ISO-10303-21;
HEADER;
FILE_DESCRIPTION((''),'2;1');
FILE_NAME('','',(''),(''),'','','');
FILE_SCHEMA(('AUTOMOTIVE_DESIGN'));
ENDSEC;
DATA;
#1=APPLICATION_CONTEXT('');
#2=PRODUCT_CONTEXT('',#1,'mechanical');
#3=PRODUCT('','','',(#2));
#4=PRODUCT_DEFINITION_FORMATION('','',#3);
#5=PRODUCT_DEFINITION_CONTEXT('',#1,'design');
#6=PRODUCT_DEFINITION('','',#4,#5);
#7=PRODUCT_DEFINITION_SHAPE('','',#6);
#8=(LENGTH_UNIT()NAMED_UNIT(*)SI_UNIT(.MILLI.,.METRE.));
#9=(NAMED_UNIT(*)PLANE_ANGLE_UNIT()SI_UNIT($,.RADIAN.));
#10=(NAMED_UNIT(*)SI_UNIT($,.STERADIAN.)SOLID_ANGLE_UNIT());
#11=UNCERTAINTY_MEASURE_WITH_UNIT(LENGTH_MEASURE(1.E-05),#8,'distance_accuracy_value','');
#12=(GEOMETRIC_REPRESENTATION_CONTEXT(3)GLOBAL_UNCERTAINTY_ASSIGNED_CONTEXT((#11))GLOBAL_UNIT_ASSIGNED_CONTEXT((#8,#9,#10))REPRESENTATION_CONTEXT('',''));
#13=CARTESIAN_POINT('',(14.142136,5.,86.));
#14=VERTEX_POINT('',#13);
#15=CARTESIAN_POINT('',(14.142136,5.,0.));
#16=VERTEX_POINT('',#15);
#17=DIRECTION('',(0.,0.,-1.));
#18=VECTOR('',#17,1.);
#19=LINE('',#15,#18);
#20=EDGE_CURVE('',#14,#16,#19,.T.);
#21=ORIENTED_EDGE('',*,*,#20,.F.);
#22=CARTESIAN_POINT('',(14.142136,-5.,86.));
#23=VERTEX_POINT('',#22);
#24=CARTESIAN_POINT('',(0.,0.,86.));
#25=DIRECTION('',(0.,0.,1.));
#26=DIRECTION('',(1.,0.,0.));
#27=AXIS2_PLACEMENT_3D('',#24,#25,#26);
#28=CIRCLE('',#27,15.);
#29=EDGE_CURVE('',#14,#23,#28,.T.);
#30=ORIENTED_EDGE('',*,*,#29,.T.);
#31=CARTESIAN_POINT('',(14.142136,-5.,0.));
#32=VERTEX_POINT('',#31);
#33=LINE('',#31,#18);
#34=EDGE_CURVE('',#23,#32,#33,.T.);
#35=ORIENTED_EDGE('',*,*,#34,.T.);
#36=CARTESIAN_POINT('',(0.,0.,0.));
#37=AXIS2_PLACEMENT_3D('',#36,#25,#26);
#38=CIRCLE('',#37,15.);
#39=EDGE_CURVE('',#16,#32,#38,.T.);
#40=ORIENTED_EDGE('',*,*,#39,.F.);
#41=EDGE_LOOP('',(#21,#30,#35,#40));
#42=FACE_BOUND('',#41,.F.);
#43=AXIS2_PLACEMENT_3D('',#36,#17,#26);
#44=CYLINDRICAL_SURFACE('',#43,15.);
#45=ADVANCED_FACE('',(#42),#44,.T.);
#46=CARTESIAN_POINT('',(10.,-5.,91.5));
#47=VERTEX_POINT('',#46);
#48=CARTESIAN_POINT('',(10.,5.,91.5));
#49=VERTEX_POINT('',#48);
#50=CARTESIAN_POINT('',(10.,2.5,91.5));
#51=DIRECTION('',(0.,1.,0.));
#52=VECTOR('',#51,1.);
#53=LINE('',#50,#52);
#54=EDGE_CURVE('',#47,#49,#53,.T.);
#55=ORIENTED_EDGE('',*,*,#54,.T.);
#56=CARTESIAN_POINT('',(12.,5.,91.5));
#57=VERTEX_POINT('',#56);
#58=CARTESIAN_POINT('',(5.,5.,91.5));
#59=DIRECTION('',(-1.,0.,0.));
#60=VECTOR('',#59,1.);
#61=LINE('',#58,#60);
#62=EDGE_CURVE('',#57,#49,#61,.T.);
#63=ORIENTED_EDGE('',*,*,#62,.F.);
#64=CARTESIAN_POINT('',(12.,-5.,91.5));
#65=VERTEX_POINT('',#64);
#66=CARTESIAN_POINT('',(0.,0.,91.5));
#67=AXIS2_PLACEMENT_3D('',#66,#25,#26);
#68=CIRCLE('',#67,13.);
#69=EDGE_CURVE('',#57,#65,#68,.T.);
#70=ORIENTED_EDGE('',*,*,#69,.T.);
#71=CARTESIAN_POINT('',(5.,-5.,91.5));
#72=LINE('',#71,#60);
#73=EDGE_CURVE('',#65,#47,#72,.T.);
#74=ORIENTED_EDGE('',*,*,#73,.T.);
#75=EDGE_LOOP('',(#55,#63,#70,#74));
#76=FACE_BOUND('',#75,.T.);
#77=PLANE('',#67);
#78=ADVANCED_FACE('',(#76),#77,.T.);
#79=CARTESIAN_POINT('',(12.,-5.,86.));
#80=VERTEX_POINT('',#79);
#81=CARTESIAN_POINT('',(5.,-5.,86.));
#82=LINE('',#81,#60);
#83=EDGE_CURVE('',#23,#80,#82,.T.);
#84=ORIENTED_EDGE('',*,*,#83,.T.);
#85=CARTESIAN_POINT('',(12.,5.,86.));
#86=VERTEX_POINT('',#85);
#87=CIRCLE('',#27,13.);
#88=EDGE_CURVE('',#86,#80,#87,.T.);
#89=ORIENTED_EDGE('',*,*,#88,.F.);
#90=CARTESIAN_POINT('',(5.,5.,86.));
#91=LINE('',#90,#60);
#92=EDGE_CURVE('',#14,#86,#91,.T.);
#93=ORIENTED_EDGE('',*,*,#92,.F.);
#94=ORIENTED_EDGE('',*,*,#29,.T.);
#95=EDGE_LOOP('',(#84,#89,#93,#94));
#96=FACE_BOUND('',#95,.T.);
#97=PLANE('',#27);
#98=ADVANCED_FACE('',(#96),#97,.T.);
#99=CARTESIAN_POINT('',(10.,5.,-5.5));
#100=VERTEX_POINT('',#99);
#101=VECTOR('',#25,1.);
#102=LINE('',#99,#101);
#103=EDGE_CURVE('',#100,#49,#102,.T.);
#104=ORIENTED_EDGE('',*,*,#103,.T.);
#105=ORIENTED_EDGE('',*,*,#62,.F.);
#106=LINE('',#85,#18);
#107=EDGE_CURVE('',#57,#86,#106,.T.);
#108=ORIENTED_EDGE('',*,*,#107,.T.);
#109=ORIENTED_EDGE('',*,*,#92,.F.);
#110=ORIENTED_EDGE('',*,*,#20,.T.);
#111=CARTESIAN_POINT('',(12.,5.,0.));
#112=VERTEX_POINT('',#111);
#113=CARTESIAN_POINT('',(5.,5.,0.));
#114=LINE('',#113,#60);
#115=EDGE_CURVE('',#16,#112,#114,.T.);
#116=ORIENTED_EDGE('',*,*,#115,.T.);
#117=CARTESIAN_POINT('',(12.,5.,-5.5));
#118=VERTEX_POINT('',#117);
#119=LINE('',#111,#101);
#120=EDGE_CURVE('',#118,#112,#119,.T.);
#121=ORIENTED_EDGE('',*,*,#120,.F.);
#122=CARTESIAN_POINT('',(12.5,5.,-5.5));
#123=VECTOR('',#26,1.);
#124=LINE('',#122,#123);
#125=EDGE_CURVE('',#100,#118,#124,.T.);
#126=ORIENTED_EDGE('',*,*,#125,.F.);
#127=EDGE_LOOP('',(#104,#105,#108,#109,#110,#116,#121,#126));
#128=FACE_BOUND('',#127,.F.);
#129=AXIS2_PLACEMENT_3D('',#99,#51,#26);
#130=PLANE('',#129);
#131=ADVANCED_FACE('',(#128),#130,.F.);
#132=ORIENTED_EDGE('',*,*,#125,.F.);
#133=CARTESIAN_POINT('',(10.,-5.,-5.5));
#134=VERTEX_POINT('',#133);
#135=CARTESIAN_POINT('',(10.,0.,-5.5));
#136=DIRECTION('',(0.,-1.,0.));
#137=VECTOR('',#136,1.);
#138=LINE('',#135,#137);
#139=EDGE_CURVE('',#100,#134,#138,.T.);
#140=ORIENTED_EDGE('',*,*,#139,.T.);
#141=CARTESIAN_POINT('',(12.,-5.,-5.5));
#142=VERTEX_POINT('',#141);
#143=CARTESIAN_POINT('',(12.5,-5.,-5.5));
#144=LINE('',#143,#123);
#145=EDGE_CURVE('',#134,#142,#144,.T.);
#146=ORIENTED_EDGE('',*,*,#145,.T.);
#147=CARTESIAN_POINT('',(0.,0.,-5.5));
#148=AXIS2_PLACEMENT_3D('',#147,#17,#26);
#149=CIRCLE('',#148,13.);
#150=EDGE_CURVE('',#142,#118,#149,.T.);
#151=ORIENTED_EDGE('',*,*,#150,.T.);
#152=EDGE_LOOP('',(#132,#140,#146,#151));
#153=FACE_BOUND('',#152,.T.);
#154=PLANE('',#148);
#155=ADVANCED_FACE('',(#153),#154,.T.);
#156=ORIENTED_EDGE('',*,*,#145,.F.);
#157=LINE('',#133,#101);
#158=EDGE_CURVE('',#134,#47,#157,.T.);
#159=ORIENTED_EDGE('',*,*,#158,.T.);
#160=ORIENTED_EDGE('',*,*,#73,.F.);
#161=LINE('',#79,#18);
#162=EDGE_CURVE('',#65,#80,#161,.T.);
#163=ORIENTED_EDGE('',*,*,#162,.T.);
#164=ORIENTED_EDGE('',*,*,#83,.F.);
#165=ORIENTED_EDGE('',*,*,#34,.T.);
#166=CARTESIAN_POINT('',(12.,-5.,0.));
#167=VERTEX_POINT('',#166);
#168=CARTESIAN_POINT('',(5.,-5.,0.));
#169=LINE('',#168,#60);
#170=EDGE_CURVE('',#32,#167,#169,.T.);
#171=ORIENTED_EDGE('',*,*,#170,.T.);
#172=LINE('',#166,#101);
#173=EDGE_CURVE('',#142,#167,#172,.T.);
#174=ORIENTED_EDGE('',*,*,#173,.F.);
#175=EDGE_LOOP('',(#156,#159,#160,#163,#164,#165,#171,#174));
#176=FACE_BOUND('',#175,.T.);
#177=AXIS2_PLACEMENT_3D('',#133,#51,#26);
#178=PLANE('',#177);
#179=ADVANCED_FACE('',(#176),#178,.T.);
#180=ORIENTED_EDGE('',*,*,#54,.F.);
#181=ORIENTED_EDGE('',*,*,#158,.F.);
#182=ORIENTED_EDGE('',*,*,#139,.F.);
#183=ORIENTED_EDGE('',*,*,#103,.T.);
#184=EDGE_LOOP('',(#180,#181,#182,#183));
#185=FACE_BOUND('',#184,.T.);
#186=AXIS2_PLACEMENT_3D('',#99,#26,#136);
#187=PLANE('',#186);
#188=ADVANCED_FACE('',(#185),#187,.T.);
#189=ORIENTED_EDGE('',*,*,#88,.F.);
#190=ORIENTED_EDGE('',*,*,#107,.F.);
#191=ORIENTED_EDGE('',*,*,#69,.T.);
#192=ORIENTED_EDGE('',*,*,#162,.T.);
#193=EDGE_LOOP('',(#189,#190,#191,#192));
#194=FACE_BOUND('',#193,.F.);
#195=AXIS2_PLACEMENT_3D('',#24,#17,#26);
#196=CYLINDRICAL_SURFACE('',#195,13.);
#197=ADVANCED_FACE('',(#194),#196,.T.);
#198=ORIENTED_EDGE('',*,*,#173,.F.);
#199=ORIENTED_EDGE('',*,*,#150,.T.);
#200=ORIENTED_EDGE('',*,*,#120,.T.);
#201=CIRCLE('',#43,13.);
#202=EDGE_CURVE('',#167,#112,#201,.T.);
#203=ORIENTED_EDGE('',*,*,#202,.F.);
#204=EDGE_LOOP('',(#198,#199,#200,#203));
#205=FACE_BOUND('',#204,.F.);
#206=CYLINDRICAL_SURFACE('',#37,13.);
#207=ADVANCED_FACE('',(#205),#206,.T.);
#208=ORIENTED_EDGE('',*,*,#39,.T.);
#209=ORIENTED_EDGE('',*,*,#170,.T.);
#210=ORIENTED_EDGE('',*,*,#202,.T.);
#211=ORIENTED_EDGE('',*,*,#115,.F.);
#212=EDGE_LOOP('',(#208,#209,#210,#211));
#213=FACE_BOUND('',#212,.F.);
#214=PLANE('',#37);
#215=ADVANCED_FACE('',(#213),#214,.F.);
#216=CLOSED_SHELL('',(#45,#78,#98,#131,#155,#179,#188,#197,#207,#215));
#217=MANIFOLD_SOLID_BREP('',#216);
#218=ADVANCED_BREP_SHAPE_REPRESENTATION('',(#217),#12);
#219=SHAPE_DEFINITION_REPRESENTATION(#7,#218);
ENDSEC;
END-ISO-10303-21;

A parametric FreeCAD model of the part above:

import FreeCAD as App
import Part
import Sketcher
Q = App.Units.Quantity

doc = App.newDocument("Part")
body = doc.addObject("PartDesign::Body", "Body")

sketch1 = body.newObject("Sketcher::SketchObject", "Sketch")
sketch1.AttachmentSupport = (doc.getObject("XY_Plane"), [""])
sketch1.MapMode = "FlatFace"
sketch1.addGeometry(Part.Circle(App.Vector(0, 0, 0), App.Vector(0, 0, 1), 15), False)
sketch1.addConstraint(Sketcher.Constraint("Coincident", 0, 3, -1, 1))
sketch1.addConstraint(Sketcher.Constraint("Diameter", 0, Q("30 mm")))
pad1 = body.newObject("PartDesign::Pad", "Pad")
pad1.Profile = sketch1
pad1.Length = 86

sketch2 = body.newObject("Sketcher::SketchObject", "Sketch001")
sketch2.AttachmentSupport = (doc.getObject("XY_Plane"), [""])
sketch2.MapMode = "FlatFace"
sketch2.AttachmentOffset = App.Placement(App.Vector(0, 0, 86), App.Rotation())
sketch2.addGeometry(Part.Circle(App.Vector(0, 0, 0), App.Vector(0, 0, 1), 13), False)
sketch2.addConstraint(Sketcher.Constraint("Coincident", 0, 3, -1, 1))
sketch2.addConstraint(Sketcher.Constraint("Diameter", 0, Q("26 mm")))
pad2 = body.newObject("PartDesign::Pad", "Pad001")
pad2.Profile = sketch2
pad2.Length = 5.5

sketch3 = body.newObject("Sketcher::SketchObject", "Sketch002")
sketch3.AttachmentSupport = (doc.getObject("XY_Plane"), [""])
sketch3.MapMode = "FlatFace"
sketch3.addGeometry(Part.Circle(App.Vector(0, 0, 0), App.Vector(0, 0, 1), 13), False)
sketch3.addConstraint(Sketcher.Constraint("Coincident", 0, 3, -1, 1))
sketch3.addConstraint(Sketcher.Constraint("Diameter", 0, Q("26 mm")))
pad3 = body.newObject("PartDesign::Pad", "Pad002")
pad3.Profile = sketch3
pad3.Length = 5.5
pad3.Reversed = True

sketch4 = body.newObject("Sketcher::SketchObject", "Sketch003")
sketch4.AttachmentSupport = (doc.getObject("XY_Plane"), [""])
sketch4.MapMode = "FlatFace"
sketch4.AttachmentOffset = App.Placement(App.Vector(0, 0, -5.5), App.Rotation())
sketch4.addGeometry(Part.LineSegment(App.Vector(10, -5, 0), App.Vector(10, 5, 0)), False)
sketch4.addGeometry(Part.LineSegment(App.Vector(10, 5, 0), App.Vector(15, 5, 0)), False)
sketch4.addGeometry(Part.LineSegment(App.Vector(15, 5, 0), App.Vector(15, -5, 0)), False)
sketch4.addGeometry(Part.LineSegment(App.Vector(15, -5, 0), App.Vector(10, -5, 0)), False)
sketch4.addConstraint(Sketcher.Constraint("Coincident", 0, 2, 1, 1))
sketch4.addConstraint(Sketcher.Constraint("Coincident", 1, 2, 2, 1))
sketch4.addConstraint(Sketcher.Constraint("Coincident", 2, 2, 3, 1))
sketch4.addConstraint(Sketcher.Constraint("Coincident", 3, 2, 0, 1))
sketch4.addConstraint(Sketcher.Constraint("Vertical", 0))
sketch4.addConstraint(Sketcher.Constraint("Horizontal", 1))
sketch4.addConstraint(Sketcher.Constraint("Vertical", 2))
sketch4.addConstraint(Sketcher.Constraint("Horizontal", 3))
sketch4.addConstraint(Sketcher.Constraint("DistanceX", 1, 1, 1, 2, Q("5 mm")))
sketch4.addConstraint(Sketcher.Constraint("DistanceY", 0, 1, 0, 2, Q("10 mm")))
sketch4.addConstraint(Sketcher.Constraint("DistanceX", -1, 1, 0, 2, Q("10 mm")))
sketch4.addConstraint(Sketcher.Constraint("DistanceY", -1, 1, 0, 2, Q("5 mm")))
pocket1 = body.newObject("PartDesign::Pocket", "Pocket")
pocket1.Profile = sketch4
pocket1.Length = 117
pocket1.Reversed = True

doc.recompute()
